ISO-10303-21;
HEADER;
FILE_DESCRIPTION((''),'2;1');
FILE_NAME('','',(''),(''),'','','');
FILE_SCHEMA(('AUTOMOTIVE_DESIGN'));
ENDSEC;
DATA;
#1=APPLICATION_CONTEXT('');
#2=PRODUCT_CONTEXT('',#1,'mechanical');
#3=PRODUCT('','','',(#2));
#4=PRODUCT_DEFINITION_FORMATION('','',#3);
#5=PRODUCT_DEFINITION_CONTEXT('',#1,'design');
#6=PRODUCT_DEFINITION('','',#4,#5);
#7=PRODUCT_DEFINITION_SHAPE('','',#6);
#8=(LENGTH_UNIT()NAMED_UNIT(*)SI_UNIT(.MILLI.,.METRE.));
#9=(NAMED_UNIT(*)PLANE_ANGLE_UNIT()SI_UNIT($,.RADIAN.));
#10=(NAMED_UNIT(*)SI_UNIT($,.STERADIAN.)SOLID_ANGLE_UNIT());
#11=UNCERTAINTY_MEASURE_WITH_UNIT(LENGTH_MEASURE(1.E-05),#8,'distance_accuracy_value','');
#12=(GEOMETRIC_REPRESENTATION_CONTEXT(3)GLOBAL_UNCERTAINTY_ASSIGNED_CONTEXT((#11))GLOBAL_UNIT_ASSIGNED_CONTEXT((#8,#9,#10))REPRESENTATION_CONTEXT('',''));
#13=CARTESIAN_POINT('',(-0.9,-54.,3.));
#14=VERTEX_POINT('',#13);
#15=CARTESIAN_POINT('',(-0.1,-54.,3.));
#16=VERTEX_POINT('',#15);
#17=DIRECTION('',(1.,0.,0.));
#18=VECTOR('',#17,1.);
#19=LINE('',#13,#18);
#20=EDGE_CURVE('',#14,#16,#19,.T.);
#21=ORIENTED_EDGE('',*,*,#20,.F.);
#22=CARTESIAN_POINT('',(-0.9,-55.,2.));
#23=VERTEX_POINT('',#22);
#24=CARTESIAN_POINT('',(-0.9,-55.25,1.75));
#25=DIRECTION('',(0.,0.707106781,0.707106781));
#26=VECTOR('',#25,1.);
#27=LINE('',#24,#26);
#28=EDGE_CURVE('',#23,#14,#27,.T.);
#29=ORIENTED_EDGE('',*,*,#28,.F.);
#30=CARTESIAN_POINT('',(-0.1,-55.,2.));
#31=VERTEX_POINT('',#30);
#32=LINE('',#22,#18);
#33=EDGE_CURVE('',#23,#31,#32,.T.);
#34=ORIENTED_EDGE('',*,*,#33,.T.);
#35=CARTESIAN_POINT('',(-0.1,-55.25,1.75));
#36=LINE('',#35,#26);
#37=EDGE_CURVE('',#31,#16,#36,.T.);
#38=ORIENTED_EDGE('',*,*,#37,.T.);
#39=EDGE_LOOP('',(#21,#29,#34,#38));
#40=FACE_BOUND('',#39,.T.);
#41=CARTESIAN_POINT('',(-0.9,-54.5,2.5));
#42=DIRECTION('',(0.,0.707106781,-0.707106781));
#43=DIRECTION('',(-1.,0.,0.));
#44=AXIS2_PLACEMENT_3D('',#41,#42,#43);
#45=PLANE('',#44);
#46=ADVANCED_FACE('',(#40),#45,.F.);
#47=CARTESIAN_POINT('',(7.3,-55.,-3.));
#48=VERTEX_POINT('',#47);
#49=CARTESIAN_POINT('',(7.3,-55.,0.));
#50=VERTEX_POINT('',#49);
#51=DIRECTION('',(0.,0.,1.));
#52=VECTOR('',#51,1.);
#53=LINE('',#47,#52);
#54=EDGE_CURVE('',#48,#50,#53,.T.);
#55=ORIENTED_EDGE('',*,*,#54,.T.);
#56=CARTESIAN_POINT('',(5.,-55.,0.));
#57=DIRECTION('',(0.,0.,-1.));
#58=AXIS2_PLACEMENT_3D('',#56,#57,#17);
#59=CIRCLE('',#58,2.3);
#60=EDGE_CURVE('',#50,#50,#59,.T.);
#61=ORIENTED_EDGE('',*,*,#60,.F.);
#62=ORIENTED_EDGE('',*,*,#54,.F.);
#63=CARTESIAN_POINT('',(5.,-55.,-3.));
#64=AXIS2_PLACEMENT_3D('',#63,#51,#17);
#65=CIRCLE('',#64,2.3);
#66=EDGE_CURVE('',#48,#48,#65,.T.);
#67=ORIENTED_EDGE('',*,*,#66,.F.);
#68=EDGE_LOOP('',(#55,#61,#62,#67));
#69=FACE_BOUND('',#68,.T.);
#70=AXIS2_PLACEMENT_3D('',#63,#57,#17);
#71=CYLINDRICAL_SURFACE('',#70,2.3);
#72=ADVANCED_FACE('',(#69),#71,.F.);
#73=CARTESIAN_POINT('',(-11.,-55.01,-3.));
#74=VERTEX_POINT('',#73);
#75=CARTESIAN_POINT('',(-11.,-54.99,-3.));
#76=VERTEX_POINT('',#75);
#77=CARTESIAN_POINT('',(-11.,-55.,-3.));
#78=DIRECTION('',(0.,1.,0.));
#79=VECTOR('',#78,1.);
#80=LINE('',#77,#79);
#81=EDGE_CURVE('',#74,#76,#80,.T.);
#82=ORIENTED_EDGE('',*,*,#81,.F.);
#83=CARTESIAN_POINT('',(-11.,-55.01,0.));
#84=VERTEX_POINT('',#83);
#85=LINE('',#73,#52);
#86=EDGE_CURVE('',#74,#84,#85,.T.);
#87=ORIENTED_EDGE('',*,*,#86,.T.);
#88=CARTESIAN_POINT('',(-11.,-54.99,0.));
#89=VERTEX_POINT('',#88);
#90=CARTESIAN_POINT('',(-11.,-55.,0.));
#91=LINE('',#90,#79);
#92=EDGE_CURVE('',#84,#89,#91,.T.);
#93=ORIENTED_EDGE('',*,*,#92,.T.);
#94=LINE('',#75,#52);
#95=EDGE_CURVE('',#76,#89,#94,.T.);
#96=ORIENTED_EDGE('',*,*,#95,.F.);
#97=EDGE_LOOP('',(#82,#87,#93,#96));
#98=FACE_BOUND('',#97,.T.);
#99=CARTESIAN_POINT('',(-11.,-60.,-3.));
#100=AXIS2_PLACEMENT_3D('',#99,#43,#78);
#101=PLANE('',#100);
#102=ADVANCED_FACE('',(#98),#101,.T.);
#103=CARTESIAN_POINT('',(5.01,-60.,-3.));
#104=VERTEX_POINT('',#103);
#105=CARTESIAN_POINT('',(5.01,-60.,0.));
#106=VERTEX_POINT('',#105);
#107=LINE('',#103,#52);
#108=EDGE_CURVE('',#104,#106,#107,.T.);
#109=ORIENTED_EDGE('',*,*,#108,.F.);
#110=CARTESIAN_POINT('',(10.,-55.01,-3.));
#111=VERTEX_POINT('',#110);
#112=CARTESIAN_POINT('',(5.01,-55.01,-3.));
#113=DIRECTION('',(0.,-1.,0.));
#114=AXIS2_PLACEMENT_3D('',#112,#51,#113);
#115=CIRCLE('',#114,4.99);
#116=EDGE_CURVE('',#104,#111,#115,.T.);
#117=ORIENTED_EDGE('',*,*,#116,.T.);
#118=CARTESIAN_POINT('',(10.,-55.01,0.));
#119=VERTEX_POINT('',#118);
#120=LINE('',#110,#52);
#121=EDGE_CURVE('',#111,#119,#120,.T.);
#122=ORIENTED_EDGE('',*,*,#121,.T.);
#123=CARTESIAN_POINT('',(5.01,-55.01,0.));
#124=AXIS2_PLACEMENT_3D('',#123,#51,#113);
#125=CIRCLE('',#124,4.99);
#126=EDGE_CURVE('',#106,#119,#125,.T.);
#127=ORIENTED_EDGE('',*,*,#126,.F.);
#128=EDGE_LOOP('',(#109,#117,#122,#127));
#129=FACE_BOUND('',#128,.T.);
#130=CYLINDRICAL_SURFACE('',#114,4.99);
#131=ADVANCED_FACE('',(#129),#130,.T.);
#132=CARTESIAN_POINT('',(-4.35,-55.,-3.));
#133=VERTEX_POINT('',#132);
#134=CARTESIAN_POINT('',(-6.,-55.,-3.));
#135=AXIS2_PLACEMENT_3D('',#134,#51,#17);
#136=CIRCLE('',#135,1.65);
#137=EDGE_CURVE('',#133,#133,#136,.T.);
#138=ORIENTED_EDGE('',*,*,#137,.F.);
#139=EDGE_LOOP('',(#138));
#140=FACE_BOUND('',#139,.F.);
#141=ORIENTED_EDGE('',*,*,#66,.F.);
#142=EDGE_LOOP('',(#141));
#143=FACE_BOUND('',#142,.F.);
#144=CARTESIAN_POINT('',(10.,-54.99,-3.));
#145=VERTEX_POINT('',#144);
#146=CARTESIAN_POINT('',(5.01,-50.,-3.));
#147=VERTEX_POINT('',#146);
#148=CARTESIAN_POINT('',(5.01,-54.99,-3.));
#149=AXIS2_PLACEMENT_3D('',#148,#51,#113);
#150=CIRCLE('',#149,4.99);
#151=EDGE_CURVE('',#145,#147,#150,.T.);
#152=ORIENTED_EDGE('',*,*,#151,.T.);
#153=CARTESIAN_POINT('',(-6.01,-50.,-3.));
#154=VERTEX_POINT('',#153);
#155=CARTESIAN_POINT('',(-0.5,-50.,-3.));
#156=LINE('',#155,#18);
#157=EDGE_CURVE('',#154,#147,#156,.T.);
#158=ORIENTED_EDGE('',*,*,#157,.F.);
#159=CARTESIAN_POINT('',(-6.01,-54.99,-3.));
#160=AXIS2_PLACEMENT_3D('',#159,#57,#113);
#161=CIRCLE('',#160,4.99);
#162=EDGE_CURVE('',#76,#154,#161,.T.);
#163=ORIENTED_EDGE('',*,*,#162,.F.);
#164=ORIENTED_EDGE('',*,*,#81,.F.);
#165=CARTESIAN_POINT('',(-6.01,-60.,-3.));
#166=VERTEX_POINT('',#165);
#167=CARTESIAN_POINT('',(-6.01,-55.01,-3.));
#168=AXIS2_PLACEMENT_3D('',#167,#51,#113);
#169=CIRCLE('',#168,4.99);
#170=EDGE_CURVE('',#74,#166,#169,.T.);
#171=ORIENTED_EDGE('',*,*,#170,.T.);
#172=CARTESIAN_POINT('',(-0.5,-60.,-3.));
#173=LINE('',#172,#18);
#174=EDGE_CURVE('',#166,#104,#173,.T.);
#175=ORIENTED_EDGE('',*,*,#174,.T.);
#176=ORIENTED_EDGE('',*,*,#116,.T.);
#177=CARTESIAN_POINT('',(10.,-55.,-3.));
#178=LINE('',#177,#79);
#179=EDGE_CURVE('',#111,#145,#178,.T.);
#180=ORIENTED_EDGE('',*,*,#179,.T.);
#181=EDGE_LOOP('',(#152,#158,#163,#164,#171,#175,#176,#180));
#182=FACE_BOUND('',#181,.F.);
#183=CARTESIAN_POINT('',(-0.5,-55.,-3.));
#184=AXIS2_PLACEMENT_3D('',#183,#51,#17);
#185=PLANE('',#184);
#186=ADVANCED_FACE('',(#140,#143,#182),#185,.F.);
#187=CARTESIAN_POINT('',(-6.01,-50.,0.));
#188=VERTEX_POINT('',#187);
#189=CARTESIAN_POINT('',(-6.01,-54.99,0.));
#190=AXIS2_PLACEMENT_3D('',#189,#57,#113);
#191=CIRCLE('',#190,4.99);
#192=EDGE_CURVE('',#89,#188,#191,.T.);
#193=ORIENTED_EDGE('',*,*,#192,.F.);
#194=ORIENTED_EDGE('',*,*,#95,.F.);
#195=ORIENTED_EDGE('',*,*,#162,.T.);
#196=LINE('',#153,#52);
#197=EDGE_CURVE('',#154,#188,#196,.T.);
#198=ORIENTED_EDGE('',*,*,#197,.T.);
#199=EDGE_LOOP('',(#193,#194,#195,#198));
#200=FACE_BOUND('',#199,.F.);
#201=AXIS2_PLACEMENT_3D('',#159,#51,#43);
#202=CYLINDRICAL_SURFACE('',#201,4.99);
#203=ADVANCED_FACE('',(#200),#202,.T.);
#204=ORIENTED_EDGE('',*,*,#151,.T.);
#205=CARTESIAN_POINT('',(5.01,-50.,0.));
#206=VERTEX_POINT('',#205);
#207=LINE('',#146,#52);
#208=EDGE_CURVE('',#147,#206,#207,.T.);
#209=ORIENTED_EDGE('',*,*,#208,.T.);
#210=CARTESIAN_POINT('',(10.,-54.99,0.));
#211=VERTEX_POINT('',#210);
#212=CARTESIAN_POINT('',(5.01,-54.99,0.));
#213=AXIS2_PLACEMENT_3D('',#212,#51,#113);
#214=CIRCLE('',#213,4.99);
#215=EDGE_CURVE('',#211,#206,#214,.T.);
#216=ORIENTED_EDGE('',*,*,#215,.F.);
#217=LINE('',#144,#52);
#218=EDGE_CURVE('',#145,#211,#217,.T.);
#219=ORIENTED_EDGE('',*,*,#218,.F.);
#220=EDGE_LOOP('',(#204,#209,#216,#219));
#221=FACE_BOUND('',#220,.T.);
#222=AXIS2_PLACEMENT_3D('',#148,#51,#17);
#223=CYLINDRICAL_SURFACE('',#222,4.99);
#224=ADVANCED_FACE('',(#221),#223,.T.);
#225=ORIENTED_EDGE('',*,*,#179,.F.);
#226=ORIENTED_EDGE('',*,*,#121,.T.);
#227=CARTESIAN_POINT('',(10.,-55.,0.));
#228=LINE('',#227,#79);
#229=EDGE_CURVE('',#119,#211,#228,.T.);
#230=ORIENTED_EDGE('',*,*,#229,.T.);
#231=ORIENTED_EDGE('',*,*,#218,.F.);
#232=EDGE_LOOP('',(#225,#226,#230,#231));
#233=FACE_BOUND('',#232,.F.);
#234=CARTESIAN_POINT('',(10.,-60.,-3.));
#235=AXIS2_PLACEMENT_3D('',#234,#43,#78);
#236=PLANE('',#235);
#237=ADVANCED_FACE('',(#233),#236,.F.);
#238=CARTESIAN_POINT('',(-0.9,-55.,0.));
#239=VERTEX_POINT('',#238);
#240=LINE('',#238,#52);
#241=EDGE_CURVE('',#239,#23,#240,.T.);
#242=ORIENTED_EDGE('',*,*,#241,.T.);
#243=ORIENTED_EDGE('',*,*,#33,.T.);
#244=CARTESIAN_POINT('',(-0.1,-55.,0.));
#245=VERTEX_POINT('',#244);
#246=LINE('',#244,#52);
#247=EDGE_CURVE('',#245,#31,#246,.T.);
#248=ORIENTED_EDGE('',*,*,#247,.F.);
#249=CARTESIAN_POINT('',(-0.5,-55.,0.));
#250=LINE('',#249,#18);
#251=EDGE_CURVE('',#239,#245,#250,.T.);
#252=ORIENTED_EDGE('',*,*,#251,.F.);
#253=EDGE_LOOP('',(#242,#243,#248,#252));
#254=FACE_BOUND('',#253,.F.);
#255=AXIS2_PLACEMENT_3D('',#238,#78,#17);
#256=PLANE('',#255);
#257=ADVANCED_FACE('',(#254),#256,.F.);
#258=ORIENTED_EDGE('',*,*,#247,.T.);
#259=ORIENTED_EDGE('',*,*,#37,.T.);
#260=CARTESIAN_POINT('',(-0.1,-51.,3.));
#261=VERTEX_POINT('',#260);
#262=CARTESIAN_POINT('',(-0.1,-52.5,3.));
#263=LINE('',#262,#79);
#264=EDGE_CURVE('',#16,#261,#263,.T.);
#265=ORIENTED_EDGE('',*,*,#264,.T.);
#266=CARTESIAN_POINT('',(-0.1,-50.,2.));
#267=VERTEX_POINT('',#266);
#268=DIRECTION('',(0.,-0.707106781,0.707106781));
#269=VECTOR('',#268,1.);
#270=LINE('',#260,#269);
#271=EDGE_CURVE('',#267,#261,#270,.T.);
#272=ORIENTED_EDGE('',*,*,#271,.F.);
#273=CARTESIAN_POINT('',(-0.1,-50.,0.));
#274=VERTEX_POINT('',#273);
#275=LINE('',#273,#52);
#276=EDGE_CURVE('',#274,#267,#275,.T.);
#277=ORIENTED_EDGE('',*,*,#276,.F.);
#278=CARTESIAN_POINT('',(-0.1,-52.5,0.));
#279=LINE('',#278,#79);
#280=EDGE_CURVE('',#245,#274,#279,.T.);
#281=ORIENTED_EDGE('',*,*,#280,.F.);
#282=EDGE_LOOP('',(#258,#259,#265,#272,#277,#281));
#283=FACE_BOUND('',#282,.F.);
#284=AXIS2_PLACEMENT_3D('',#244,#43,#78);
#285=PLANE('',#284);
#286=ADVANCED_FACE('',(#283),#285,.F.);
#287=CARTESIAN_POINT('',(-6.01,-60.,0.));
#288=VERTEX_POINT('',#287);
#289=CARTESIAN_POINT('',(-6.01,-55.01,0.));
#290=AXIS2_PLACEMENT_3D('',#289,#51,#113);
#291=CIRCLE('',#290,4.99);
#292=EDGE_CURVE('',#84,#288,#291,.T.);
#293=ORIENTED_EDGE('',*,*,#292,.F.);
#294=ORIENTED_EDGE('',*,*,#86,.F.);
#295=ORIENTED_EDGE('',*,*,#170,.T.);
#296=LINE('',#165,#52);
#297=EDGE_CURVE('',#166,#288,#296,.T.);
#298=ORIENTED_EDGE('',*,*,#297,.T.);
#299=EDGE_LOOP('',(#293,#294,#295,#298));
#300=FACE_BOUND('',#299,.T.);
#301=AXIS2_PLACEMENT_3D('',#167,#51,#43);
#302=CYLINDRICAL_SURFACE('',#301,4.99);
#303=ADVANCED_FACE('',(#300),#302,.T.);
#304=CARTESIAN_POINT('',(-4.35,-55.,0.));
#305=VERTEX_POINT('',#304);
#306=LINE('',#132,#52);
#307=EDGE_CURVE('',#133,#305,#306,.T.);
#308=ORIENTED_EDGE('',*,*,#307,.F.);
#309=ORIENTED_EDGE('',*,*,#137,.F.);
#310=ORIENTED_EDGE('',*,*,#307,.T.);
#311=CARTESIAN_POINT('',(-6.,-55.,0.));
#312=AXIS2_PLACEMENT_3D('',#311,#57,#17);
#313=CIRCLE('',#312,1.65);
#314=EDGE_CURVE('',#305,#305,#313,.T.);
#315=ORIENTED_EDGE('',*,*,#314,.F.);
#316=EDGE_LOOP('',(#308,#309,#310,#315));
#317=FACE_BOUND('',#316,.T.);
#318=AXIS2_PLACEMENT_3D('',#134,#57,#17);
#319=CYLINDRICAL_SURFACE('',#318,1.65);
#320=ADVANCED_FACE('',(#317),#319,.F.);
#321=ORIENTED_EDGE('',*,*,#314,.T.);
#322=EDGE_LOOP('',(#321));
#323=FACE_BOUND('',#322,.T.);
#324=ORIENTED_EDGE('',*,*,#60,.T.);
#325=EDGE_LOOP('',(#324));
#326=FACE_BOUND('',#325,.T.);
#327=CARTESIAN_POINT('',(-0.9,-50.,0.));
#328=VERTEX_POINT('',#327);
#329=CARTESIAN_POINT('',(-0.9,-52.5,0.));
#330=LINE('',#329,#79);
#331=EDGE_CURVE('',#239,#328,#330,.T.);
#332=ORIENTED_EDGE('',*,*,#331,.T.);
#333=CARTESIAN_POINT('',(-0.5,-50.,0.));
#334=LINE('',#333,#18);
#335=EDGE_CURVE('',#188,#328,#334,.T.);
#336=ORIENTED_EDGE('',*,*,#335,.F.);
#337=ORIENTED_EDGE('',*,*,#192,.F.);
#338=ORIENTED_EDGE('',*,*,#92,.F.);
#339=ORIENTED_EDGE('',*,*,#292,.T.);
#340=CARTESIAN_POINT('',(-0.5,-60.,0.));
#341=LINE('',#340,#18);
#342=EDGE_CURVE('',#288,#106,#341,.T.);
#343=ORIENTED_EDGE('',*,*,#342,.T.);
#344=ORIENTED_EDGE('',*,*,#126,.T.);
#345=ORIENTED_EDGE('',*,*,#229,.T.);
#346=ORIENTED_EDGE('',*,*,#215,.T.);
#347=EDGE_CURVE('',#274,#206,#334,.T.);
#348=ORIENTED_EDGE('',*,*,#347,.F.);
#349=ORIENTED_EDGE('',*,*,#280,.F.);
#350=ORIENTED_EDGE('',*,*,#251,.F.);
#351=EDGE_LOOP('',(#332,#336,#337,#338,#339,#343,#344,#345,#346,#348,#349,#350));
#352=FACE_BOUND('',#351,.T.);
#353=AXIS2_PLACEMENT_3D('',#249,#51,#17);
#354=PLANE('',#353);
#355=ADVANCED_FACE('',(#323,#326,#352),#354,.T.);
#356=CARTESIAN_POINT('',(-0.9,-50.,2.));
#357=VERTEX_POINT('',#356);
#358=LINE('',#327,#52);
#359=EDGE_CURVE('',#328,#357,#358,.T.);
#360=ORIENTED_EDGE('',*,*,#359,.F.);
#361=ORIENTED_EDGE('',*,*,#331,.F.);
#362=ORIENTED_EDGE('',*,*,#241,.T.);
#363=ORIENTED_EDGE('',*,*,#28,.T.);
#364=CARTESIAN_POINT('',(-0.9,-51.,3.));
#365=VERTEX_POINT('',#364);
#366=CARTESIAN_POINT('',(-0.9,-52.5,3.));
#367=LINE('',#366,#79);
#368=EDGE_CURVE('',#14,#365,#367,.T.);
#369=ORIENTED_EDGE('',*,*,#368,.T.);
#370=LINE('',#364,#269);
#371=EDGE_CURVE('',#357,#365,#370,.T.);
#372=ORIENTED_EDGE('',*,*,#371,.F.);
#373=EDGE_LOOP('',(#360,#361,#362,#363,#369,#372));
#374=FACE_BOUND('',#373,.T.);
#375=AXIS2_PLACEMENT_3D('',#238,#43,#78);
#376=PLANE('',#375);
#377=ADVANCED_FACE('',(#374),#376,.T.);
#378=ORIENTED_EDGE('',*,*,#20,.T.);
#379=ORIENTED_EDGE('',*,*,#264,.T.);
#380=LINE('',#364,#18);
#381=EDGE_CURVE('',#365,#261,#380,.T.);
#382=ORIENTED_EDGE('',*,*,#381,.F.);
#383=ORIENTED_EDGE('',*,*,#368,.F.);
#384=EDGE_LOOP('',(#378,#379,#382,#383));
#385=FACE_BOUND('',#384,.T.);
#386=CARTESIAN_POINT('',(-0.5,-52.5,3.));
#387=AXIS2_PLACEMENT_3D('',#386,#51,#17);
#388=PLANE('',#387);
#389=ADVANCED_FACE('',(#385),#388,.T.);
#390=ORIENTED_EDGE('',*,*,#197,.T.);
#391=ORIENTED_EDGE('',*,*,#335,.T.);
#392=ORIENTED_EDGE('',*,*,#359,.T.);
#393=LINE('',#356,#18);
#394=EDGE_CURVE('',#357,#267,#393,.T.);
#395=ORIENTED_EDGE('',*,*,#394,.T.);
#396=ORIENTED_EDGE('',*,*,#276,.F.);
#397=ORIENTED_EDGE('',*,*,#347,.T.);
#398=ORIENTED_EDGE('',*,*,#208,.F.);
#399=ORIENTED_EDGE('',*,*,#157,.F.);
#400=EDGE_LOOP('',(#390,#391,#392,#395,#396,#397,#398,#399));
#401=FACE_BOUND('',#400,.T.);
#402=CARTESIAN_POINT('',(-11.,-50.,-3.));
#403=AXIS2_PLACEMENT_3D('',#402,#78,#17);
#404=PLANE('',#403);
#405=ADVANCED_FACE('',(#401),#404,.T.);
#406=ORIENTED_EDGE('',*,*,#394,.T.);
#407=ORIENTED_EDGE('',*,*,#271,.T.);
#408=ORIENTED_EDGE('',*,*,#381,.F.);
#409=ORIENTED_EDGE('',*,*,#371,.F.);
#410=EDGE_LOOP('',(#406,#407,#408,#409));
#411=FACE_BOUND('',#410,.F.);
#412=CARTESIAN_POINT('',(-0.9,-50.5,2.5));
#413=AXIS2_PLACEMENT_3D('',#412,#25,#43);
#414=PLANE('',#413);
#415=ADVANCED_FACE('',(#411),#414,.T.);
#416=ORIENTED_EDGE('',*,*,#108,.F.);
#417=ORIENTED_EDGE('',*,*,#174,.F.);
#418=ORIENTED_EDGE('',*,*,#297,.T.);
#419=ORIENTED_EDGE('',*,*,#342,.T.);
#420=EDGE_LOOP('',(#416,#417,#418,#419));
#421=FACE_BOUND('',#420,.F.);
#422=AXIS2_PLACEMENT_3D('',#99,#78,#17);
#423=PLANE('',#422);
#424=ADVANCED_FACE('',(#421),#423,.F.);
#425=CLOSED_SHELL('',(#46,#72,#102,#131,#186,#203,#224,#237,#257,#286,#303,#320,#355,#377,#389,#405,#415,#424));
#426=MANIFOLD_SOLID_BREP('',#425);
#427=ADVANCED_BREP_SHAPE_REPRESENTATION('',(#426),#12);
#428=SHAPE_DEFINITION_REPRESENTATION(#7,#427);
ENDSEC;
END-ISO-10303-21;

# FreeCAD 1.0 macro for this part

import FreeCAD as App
import Part
import Sketcher

V = App.Vector
Q = App.Units.Quantity


def edges_at(feature, points):
    """Names of the edges that pass closest to the given points."""
    edges = feature.Shape.Edges
    near = lambda p: min(range(len(edges)), key=lambda i: edges[i].distToShape(Part.Vertex(*p))[0])
    return sorted({f"Edge{near(p) + 1}" for p in points})


def add_polygon(sketch, points):
    """Adds a closed chain of lines whose ends are joined by coincident constraints."""
    first, n = sketch.GeometryCount, len(points)
    for a, b in zip(points, points[1:] + points[:1]):
        sketch.addGeometry(Part.LineSegment(App.Vector(*a, 0), App.Vector(*b, 0)), False)
    for i in range(n):
        sketch.addConstraint(Sketcher.Constraint("Coincident", first + i, 2, first + (i + 1) % n, 1))

doc = App.newDocument("Part")
body = doc.addObject("PartDesign::Body", "Body")

sketch1 = body.newObject("Sketcher::SketchObject", "Sketch")
sketch1.AttachmentSupport = (doc.getObject("XY_Plane"), [""])
sketch1.MapMode = "FlatFace"
add_polygon(sketch1, [(-0.9, -50), (-0.9, -55), (-0.1, -55), (-0.1, -50)])
sketch1.addConstraint([
    Sketcher.Constraint("Vertical", 0),
    Sketcher.Constraint("Horizontal", 1),
    Sketcher.Constraint("Vertical", 2),
    Sketcher.Constraint("Horizontal", 3),
    Sketcher.Constraint("DistanceY", 0, 2, 0, 1, Q("5 mm")),
    Sketcher.Constraint("DistanceX", 1, 1, 1, 2, Q("0.8 mm")),
    Sketcher.Constraint("DistanceY", 0, 2, -1, 1, Q("55 mm")),
    Sketcher.Constraint("DistanceX", 0, 2, -1, 1, Q("0.9 mm")),
])
pad1 = body.newObject("PartDesign::Pad", "Pad")
pad1.Profile = sketch1
pad1.Length = 3
doc.recompute()

chamfer = body.newObject("PartDesign::Chamfer", "Chamfer")
chamfer.Base = (pad1, edges_at(pad1, [(-0.5, -55, 3), (-0.5, -50, 3)]))
chamfer.Size = 1
body2 = doc.addObject("PartDesign::Body", "Body001")

sketch2 = body2.newObject("Sketcher::SketchObject", "Sketch001")
sketch2.AttachmentSupport = (doc.getObject("XY_Plane001"), [""])
sketch2.MapMode = "FlatFace"
sketch2.AttachmentOffset = App.Placement(V(0, 0, -3), App.Rotation())
sketch2.addGeometry(Part.Circle(V(5, -55, 0), V(0, 0, 1), 2.3), False)
sketch2.addConstraint([
    Sketcher.Constraint("Diameter", 0, Q("4.6 mm")),
    Sketcher.Constraint("DistanceX", -1, 1, 0, 3, Q("5 mm")),
    Sketcher.Constraint("DistanceY", 0, 3, -1, 1, Q("55 mm")),
])
pad2 = body2.newObject("PartDesign::Pad", "Pad001")
pad2.Profile = sketch2
pad2.Length = 10
body3 = doc.addObject("PartDesign::Body", "Body002")
body3.AllowCompound = True

sketch3 = body3.newObject("Sketcher::SketchObject", "Sketch002")
sketch3.AttachmentSupport = (doc.getObject("XY_Plane002"), [""])
sketch3.MapMode = "FlatFace"
sketch3.AttachmentOffset = App.Placement(V(0, 0, -3), App.Rotation())
sketch3.addGeometry(Part.Circle(V(-6, -55, 0), V(0, 0, 1), 1.65), False)
sketch3.addConstraint([
    Sketcher.Constraint("Diameter", 0, Q("3.3 mm")),
    Sketcher.Constraint("DistanceX", 0, 3, -1, 1, Q("6 mm")),
    Sketcher.Constraint("DistanceY", 0, 3, -1, 1, Q("55 mm")),
])
pad3 = body3.newObject("PartDesign::Pad", "Pad002")
pad3.Profile = sketch3
pad3.Length = 10
doc.recompute()

boolean = body3.newObject("PartDesign::Boolean", "Boolean")
boolean.Type = "Fuse"
boolean.addObjects([body2])
body4 = doc.addObject("PartDesign::Body", "Body003")

sketch4 = body4.newObject("Sketcher::SketchObject", "Sketch003")
sketch4.AttachmentSupport = (doc.getObject("XY_Plane003"), [""])
sketch4.MapMode = "FlatFace"
sketch4.AttachmentOffset = App.Placement(V(0, 0, -3), App.Rotation())
add_polygon(sketch4, [(-11, -50), (-11, -60), (10, -60), (10, -50)])
sketch4.addConstraint([
    Sketcher.Constraint("Vertical", 0),
    Sketcher.Constraint("Horizontal", 1),
    Sketcher.Constraint("Vertical", 2),
    Sketcher.Constraint("Horizontal", 3),
    Sketcher.Constraint("DistanceX", 1, 1, 1, 2, Q("21 mm")),
    Sketcher.Constraint("DistanceY", 0, 2, 0, 1, Q("10 mm")),
    Sketcher.Constraint("DistanceX", 0, 2, -1, 1, Q("11 mm")),
    Sketcher.Constraint("DistanceY", 0, 2, -1, 1, Q("60 mm")),
])
pad4 = body4.newObject("PartDesign::Pad", "Pad003")
pad4.Profile = sketch4
pad4.Length = 3
doc.recompute()

fillet = body4.newObject("PartDesign::Fillet", "Fillet")
fillet.Base = (pad4, edges_at(pad4, [
    (-11, -60, -1.5),
    (-11, -50, -1.5),
    (10, -60, -1.5),
    (10, -50, -1.5),
]))
fillet.Radius = 4.99
doc.recompute()

boolean2 = body4.newObject("PartDesign::Boolean", "Boolean001")
boolean2.Type = "Cut"
boolean2.addObjects([body3])
doc.recompute()

boolean3 = body4.newObject("PartDesign::Boolean", "Boolean002")
boolean3.Type = "Fuse"
boolean3.addObjects([body])

doc.recompute()
